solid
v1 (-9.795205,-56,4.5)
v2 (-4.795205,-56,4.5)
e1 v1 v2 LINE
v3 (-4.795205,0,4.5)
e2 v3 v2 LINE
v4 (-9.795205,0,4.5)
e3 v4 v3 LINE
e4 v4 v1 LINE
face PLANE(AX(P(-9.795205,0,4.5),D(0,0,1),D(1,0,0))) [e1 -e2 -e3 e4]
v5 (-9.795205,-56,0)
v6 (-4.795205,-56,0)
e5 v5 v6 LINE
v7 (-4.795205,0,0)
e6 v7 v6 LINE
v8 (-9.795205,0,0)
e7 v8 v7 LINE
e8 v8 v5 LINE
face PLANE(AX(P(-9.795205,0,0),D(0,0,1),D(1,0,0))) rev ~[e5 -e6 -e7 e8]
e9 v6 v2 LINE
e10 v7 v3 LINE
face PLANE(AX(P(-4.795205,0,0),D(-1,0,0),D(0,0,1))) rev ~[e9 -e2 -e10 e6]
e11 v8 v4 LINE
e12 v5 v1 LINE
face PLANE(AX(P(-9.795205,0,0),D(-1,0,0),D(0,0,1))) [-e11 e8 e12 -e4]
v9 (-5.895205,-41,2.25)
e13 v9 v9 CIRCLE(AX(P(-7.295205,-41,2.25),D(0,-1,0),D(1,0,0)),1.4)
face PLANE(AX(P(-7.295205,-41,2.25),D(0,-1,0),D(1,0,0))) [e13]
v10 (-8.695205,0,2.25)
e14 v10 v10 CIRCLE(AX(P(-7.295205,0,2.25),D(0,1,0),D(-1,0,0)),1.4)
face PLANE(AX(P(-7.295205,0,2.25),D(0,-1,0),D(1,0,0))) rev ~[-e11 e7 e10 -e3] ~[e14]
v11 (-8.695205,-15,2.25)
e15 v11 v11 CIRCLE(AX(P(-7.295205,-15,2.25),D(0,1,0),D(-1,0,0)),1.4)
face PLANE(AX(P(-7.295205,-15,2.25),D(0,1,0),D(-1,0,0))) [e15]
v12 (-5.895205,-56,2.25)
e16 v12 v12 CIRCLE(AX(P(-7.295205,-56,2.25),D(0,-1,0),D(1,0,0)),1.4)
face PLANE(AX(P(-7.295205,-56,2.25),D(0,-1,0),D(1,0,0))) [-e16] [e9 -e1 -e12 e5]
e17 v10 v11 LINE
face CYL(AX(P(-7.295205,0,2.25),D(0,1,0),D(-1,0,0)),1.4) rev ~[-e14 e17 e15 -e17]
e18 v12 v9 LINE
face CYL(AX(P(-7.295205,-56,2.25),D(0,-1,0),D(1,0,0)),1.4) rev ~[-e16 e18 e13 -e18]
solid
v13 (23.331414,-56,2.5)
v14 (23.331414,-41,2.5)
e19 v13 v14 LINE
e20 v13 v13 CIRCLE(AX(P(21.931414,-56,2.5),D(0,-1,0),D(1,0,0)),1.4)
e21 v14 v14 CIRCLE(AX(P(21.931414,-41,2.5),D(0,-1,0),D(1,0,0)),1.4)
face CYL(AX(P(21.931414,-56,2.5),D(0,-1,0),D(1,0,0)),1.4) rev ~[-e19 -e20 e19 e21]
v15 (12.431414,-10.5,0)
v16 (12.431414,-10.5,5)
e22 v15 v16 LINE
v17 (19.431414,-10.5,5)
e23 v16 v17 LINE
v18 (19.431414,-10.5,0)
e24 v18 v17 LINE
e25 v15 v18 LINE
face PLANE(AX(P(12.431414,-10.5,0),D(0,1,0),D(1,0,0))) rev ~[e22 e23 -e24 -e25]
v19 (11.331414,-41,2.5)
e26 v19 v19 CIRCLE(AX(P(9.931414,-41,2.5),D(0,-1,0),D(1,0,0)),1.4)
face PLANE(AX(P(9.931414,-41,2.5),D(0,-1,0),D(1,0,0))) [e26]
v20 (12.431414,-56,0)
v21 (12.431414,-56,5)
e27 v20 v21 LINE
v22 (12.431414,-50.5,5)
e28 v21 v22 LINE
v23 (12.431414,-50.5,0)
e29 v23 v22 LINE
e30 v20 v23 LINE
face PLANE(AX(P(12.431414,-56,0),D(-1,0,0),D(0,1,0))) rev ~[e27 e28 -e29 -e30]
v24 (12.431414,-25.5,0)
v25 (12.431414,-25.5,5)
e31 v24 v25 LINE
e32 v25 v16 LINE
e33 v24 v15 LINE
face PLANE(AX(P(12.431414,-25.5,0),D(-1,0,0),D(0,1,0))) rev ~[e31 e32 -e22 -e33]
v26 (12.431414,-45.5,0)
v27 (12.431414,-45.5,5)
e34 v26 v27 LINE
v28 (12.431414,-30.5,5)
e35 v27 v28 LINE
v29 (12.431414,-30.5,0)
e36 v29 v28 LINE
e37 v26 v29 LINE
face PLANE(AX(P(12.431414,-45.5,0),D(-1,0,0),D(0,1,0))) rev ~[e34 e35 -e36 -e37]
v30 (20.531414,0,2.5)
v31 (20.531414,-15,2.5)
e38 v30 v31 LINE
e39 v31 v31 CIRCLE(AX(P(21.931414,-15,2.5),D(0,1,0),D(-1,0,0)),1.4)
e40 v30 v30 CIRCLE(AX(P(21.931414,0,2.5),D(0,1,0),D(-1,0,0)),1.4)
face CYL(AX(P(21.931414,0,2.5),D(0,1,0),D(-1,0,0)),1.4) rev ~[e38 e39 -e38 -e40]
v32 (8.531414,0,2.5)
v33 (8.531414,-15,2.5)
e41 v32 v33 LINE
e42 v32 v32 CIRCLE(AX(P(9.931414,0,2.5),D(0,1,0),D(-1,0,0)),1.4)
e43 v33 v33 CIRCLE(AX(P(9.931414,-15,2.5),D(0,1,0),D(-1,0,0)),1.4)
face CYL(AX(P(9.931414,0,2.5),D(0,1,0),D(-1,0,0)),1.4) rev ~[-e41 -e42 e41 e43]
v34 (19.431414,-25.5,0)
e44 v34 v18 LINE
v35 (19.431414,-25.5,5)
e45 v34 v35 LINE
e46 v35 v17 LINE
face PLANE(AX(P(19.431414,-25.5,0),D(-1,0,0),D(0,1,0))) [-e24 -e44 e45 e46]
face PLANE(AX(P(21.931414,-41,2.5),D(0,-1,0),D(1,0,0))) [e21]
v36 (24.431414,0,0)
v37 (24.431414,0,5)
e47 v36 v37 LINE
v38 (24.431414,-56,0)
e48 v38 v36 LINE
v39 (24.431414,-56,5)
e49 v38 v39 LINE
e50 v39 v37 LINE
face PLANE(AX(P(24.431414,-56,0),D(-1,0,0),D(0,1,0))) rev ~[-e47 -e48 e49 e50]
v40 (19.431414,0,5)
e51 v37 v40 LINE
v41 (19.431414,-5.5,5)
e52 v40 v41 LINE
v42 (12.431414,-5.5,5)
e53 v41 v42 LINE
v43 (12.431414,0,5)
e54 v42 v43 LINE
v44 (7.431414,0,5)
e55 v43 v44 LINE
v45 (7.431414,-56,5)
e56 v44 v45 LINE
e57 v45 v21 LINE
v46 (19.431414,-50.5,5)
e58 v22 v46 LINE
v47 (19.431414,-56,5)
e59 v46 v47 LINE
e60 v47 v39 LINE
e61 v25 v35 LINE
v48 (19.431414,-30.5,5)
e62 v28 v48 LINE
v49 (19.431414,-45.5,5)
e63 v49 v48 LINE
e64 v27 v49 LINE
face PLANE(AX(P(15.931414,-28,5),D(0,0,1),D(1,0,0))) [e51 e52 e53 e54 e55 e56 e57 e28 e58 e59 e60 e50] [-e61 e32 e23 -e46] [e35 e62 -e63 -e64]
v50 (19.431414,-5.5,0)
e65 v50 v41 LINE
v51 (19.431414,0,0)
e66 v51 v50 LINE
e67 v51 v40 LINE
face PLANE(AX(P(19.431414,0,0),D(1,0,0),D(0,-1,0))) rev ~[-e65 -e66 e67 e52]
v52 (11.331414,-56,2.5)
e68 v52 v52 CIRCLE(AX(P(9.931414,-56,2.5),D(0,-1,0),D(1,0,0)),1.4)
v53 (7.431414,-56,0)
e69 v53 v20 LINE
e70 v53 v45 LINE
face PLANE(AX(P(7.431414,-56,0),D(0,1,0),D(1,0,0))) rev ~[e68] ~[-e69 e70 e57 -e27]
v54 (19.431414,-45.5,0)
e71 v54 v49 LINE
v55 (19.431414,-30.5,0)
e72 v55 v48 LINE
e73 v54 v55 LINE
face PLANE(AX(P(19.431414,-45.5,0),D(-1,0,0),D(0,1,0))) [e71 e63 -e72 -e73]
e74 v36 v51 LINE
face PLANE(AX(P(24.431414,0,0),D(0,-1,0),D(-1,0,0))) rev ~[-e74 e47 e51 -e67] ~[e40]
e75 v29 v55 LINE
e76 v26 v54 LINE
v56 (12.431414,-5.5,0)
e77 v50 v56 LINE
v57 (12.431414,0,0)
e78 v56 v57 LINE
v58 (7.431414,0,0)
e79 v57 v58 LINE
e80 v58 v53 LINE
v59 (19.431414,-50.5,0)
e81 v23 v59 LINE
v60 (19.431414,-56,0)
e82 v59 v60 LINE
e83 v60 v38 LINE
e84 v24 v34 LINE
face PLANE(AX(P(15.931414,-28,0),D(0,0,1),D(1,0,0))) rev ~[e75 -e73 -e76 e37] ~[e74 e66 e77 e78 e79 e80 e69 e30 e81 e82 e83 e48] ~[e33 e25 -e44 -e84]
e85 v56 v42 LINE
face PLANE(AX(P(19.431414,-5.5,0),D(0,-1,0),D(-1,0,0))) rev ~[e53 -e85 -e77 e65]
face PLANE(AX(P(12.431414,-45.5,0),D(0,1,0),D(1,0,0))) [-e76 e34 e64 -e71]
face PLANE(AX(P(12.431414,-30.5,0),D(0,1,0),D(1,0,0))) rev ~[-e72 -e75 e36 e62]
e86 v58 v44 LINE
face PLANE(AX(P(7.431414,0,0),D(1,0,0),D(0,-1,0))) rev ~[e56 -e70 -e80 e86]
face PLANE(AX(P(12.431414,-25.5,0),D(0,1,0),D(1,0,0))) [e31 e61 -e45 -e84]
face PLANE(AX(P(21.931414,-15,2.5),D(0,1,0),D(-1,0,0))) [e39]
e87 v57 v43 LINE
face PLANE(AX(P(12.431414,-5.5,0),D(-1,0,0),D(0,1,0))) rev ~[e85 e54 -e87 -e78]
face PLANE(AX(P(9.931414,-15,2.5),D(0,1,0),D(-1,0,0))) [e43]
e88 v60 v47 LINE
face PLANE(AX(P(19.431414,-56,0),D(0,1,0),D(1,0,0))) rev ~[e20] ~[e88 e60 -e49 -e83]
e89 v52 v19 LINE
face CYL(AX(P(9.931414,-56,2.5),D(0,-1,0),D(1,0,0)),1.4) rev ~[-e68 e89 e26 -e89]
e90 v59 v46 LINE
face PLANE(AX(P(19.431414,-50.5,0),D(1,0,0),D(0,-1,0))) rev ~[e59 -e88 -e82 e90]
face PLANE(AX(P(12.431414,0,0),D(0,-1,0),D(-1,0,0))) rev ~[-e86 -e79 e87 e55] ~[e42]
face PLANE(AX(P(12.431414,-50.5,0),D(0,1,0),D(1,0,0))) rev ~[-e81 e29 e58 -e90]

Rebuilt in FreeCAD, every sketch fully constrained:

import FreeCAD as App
import Part
import Sketcher

V = App.Vector
Q = App.Units.Quantity

doc = App.newDocument("Part")
body = doc.addObject("PartDesign::Body", "Body")

# Sketch on XZ plane
sketch1 = doc.addObject("Sketcher::SketchObject", "Sketch")
body.addObject(sketch1)
sketch1.AttachmentSupport = (doc.XZ_Plane, [""])
sketch1.MapMode = "FlatFace"
sketch1.addGeometry([
    Part.LineSegment(V(-9.8, 4.5, 0), V(-9.8, 0, 0)),
    Part.LineSegment(V(-9.8, 0, 0), V(-4.8, 0, 0)),
    Part.LineSegment(V(-4.8, 0, 0), V(-4.8, 4.5, 0)),
    Part.LineSegment(V(-4.8, 4.5, 0), V(-9.8, 4.5, 0)),
], False)
sketch1.addConstraint([
    Sketcher.Constraint("Coincident", 0, 2, 1, 1),
    Sketcher.Constraint("Coincident", 1, 2, 2, 1),
    Sketcher.Constraint("Coincident", 2, 2, 3, 1),
    Sketcher.Constraint("Coincident", 3, 2, 0, 1),
    Sketcher.Constraint("Vertical", 0),
    Sketcher.Constraint("Horizontal", 1),
    Sketcher.Constraint("Vertical", 2),
    Sketcher.Constraint("Horizontal", 3),
    Sketcher.Constraint("PointOnObject", 0, 2, -1),
    Sketcher.Constraint("DistanceX", 1, 1, 1, 2, Q("5 mm")),
    Sketcher.Constraint("DistanceY", 0, 2, 0, 1, Q("4.5 mm")),
    Sketcher.Constraint("DistanceX", 0, 2, -1, 1, Q("9.795205 mm")),
])
pad1 = doc.addObject("PartDesign::Pad", "Pad")
body.addObject(pad1)
pad1.Profile = sketch1
pad1.Length = 56

# Sketch on XZ plane
sketch2 = doc.addObject("Sketcher::SketchObject", "Sketch001")
body.addObject(sketch2)
sketch2.AttachmentSupport = (doc.XZ_Plane, [""])
sketch2.MapMode = "FlatFace"
sketch2.AttachmentOffset = App.Placement(V(0, 0, 56), App.Rotation())
sketch2.addGeometry(Part.Circle(V(-7.3, 2.2, 0), V(0, 0, 1), 1.4), False)
sketch2.addConstraint([
    Sketcher.Constraint("Diameter", 0, Q("2.8 mm")),
    Sketcher.Constraint("DistanceY", -1, 1, 0, 3, Q("2.25 mm")),
    Sketcher.Constraint("DistanceX", 0, 3, -1, 1, Q("7.295205 mm")),
])
pocket1 = doc.addObject("PartDesign::Pocket", "Pocket")
body.addObject(pocket1)
pocket1.Profile = sketch2
pocket1.Length = 15

# Sketch on XZ plane
sketch3 = doc.addObject("Sketcher::SketchObject", "Sketch002")
body.addObject(sketch3)
sketch3.AttachmentSupport = (doc.XZ_Plane, [""])
sketch3.MapMode = "FlatFace"
sketch3.addGeometry(Part.Circle(V(-7.3, 2.2, 0), V(0, 0, 1), 1.4), False)
sketch3.addConstraint([
    Sketcher.Constraint("Diameter", 0, Q("2.8 mm")),
    Sketcher.Constraint("DistanceY", -1, 1, 0, 3, Q("2.25 mm")),
    Sketcher.Constraint("DistanceX", 0, 3, -1, 1, Q("7.295205 mm")),
])
pocket2 = doc.addObject("PartDesign::Pocket", "Pocket001")
body.addObject(pocket2)
pocket2.Profile = sketch3
pocket2.Length = 15
pocket2.Reversed = True
body2 = doc.addObject("PartDesign::Body", "Body001")

# Sketch on XY plane
sketch4 = doc.addObject("Sketcher::SketchObject", "Sketch003")
body2.addObject(sketch4)
sketch4.AttachmentSupport = (doc.getObject("XY_Plane001"), [""])
sketch4.MapMode = "FlatFace"
sketch4.addGeometry([
    Part.LineSegment(V(12, 0, 0), V(7, 0, 0)),  # 0
    Part.LineSegment(V(7, 0, 0), V(7, -56, 0)),  # 1
    Part.LineSegment(V(7, -56, 0), V(12, -56, 0)),  # 2
    Part.LineSegment(V(12, -56, 0), V(12, -50, 0)),  # 3
    Part.LineSegment(V(12, -50, 0), V(19, -50, 0)),  # 4
    Part.LineSegment(V(19, -50, 0), V(19, -56, 0)),  # 5
    Part.LineSegment(V(19, -56, 0), V(24, -56, 0)),  # 6
    Part.LineSegment(V(24, -56, 0), V(24, 0, 0)),  # 7
    Part.LineSegment(V(24, 0, 0), V(19, 0, 0)),  # 8
    Part.LineSegment(V(19, 0, 0), V(19, -6, 0)),  # 9
    Part.LineSegment(V(19, -6, 0), V(12, -6, 0)),  # 10
    Part.LineSegment(V(12, -6, 0), V(12, 0, 0)),  # 11
    Part.LineSegment(V(19, -46, 0), V(12, -46, 0)),  # 12
    Part.LineSegment(V(12, -46, 0), V(12, -30, 0)),  # 13
    Part.LineSegment(V(12, -30, 0), V(19, -30, 0)),  # 14
    Part.LineSegment(V(19, -30, 0), V(19, -46, 0)),  # 15
    Part.LineSegment(V(19, -26, 0), V(12, -26, 0)),  # 16
    Part.LineSegment(V(12, -26, 0), V(12, -10, 0)),  # 17
    Part.LineSegment(V(12, -10, 0), V(19, -10, 0)),  # 18
    Part.LineSegment(V(19, -10, 0), V(19, -26, 0)),  # 19
], False)
sketch4.addConstraint([
    Sketcher.Constraint("Coincident", 0, 2, 1, 1),
    Sketcher.Constraint("Coincident", 1, 2, 2, 1),
    Sketcher.Constraint("Coincident", 2, 2, 3, 1),
    Sketcher.Constraint("Coincident", 3, 2, 4, 1),
    Sketcher.Constraint("Coincident", 4, 2, 5, 1),
    Sketcher.Constraint("Coincident", 5, 2, 6, 1),
    Sketcher.Constraint("Coincident", 6, 2, 7, 1),
    Sketcher.Constraint("Coincident", 7, 2, 8, 1),
    Sketcher.Constraint("Coincident", 8, 2, 9, 1),
    Sketcher.Constraint("Coincident", 9, 2, 10, 1),
    Sketcher.Constraint("Coincident", 10, 2, 11, 1),
    Sketcher.Constraint("Coincident", 11, 2, 0, 1),
    Sketcher.Constraint("Coincident", 12, 2, 13, 1),
    Sketcher.Constraint("Coincident", 13, 2, 14, 1),
    Sketcher.Constraint("Coincident", 14, 2, 15, 1),
    Sketcher.Constraint("Coincident", 15, 2, 12, 1),
    Sketcher.Constraint("Coincident", 16, 2, 17, 1),
    Sketcher.Constraint("Coincident", 17, 2, 18, 1),
    Sketcher.Constraint("Coincident", 18, 2, 19, 1),
    Sketcher.Constraint("Coincident", 19, 2, 16, 1),
    Sketcher.Constraint("Horizontal", 0),
    Sketcher.Constraint("Vertical", 1),
    Sketcher.Constraint("Horizontal", 2),
    Sketcher.Constraint("Vertical", 3),
    Sketcher.Constraint("Horizontal", 4),
    Sketcher.Constraint("Vertical", 5),
    Sketcher.Constraint("Horizontal", 6),
    Sketcher.Constraint("Vertical", 7),
    Sketcher.Constraint("Horizontal", 8),
    Sketcher.Constraint("Vertical", 9),
    Sketcher.Constraint("Horizontal", 10),
    Sketcher.Constraint("Vertical", 11),
    Sketcher.Constraint("Horizontal", 12),
    Sketcher.Constraint("Vertical", 13),
    Sketcher.Constraint("Horizontal", 14),
    Sketcher.Constraint("Vertical", 15),
    Sketcher.Constraint("Horizontal", 16),
    Sketcher.Constraint("Vertical", 17),
    Sketcher.Constraint("Horizontal", 18),
    Sketcher.Constraint("Vertical", 19),
    Sketcher.Constraint("PointOnObject", 0, 2, -1),
    Sketcher.Constraint("PointOnObject", 7, 2, -1),
    Sketcher.Constraint("Horizontal", 2, 2, 5, 2),
    Sketcher.Constraint("Vertical", 5, 2, 8, 2),
    Sketcher.Constraint("Vertical", 3, 2, 10, 2),
    Sketcher.Constraint("Vertical", 11, 2, 12, 2),
    Sketcher.Constraint("Vertical", 9, 2, 14, 2),
    Sketcher.Constraint("Vertical", 13, 2, 16, 2),
    Sketcher.Constraint("Vertical", 15, 2, 18, 2),
    Sketcher.Constraint("Equal", 2, 6),
    Sketcher.Constraint("Equal", 5, 9),
    Sketcher.Constraint("Equal", 15, 17),
    Sketcher.Constraint("DistanceX", 0, 2, 0, 1, Q("5 mm")),
    Sketcher.Constraint("DistanceX", 4, 1, 4, 2, Q("7 mm")),
    Sketcher.Constraint("DistanceY", 1, 2, 1, 1, Q("56 mm")),
    Sketcher.Constraint("DistanceY", 13, 1, 13, 2, Q("15 mm")),
    Sketcher.Constraint("DistanceY", 3, 1, 3, 2, Q("5.5 mm")),
    Sketcher.Constraint("DistanceY", 3, 2, 12, 2, Q("5 mm")),
    Sketcher.Constraint("DistanceY", 13, 2, 16, 2, Q("5 mm")),
    Sketcher.Constraint("DistanceX", -1, 1, 0, 2, Q("7.431414 mm")),
])
pad2 = doc.addObject("PartDesign::Pad", "Pad001")
body2.addObject(pad2)
pad2.Profile = sketch4
pad2.Length = 5

# Sketch on XZ plane
sketch5 = doc.addObject("Sketcher::SketchObject", "Sketch004")
body2.addObject(sketch5)
sketch5.AttachmentSupport = (doc.getObject("XZ_Plane001"), [""])
sketch5.MapMode = "FlatFace"
sketch5.AttachmentOffset = App.Placement(V(0, 0, 56), App.Rotation())
sketch5.addGeometry([
    Part.Circle(V(9.9, 2.5, 0), V(0, 0, 1), 1.4),
    Part.Circle(V(21.9, 2.5, 0), V(0, 0, 1), 1.4),
], False)
sketch5.addConstraint([
    Sketcher.Constraint("Equal", 0, 1),
    Sketcher.Constraint("Horizontal", 0, 3, 1, 3),
    Sketcher.Constraint("Diameter", 0, Q("2.8 mm")),
    Sketcher.Constraint("DistanceX", 0, 3, 1, 3, Q("12 mm")),
    Sketcher.Constraint("DistanceY", -1, 1, 0, 3, Q("2.5 mm")),
    Sketcher.Constraint("DistanceX", -1, 1, 0, 3, Q("9.931414 mm")),
])
pocket3 = doc.addObject("PartDesign::Pocket", "Pocket002")
body2.addObject(pocket3)
pocket3.Profile = sketch5
pocket3.Length = 15

# Sketch on XZ plane
sketch6 = doc.addObject("Sketcher::SketchObject", "Sketch005")
body2.addObject(sketch6)
sketch6.AttachmentSupport = (doc.getObject("XZ_Plane001"), [""])
sketch6.MapMode = "FlatFace"
sketch6.addGeometry([
    Part.Circle(V(21.9, 2.5, 0), V(0, 0, 1), 1.4),
    Part.Circle(V(9.9, 2.5, 0), V(0, 0, 1), 1.4),
], False)
sketch6.addConstraint([
    Sketcher.Constraint("Equal", 0, 1),
    Sketcher.Constraint("Horizontal", 0, 3, 1, 3),
    Sketcher.Constraint("Diameter", 0, Q("2.8 mm")),
    Sketcher.Constraint("DistanceX", 1, 3, 0, 3, Q("12 mm")),
    Sketcher.Constraint("DistanceY", -1, 1, 0, 3, Q("2.5 mm")),
    Sketcher.Constraint("DistanceX", -1, 1, 0, 3, Q("21.931414 mm")),
])
pocket4 = doc.addObject("PartDesign::Pocket", "Pocket003")
body2.addObject(pocket4)
pocket4.Profile = sketch6
pocket4.Length = 15
pocket4.Reversed = True

doc.recompute()
